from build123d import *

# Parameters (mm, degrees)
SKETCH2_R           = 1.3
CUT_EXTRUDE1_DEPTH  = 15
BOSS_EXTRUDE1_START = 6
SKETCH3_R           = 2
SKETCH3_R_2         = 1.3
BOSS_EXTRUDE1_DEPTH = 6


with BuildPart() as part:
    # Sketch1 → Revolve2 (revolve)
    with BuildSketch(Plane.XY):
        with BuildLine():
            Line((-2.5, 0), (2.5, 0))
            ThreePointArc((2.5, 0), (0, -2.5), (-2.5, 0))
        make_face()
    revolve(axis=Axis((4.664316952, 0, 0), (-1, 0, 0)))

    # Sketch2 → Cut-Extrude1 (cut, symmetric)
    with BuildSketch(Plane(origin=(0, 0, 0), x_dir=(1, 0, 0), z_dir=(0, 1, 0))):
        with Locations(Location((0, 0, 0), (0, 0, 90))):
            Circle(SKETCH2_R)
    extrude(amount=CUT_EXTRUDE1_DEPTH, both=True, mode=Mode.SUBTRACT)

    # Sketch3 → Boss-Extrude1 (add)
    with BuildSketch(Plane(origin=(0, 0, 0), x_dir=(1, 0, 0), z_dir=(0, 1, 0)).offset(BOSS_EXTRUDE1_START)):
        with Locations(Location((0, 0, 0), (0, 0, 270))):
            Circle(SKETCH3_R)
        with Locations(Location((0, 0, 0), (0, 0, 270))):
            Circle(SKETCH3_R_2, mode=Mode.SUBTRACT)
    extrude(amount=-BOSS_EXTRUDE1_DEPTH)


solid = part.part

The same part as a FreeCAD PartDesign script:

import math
import FreeCAD as App
import Part
import Sketcher
from FreeCAD import Vector
Q = App.Units.Quantity

doc = App.newDocument("Part")
body = doc.addObject("PartDesign::Body", "Body")

# Sketch on XY plane
sketch1 = body.newObject("Sketcher::SketchObject", "Sketch")
sketch1.AttachmentSupport = (doc.getObject("XY_Plane"), [""])
sketch1.MapMode = "FlatFace"
sketch1.addGeometry(Part.LineSegment(Vector(2.5, 0, 0), Vector(-2.5, 0, 0)), False)
sketch1.addGeometry(Part.ArcOfCircle(Part.Circle(Vector(0, 0, 0), Vector(0, 0, 1), 2.5), math.radians(180), math.radians(360)), False)
sketch1.addConstraint(Sketcher.Constraint("Coincident", 0, 1, 1, 2))
sketch1.addConstraint(Sketcher.Constraint("Coincident", 1, 1, 0, 2))
sketch1.addConstraint(Sketcher.Constraint("Horizontal", 0))
sketch1.addConstraint(Sketcher.Constraint("Coincident", 1, 3, -1, 1))
sketch1.addConstraint(Sketcher.Constraint("PointOnObject", 0, 1, -1))
sketch1.addConstraint(Sketcher.Constraint("Radius", 1, Q("2.5 mm")))
revolution = body.newObject("PartDesign::Revolution", "Revolution")
revolution.Profile = sketch1
revolution.ReferenceAxis = (sketch1, ["H_Axis"])
revolution.Angle = 360

# Sketch on XZ plane
sketch2 = body.newObject("Sketcher::SketchObject", "Sketch001")
sketch2.AttachmentSupport = (doc.getObject("XZ_Plane"), [""])
sketch2.MapMode = "FlatFace"
sketch2.addGeometry(Part.Circle(Vector(0, 0, 0), Vector(0, 0, 1), 1.3), False)
sketch2.addConstraint(Sketcher.Constraint("Coincident", 0, 3, -1, 1))
sketch2.addConstraint(Sketcher.Constraint("Diameter", 0, Q("2.6 mm")))
pocket1 = body.newObject("PartDesign::Pocket", "Pocket")
pocket1.Profile = sketch2
pocket1.Length = 30
pocket1.Midplane = True

# Sketch on XZ plane
sketch3 = body.newObject("Sketcher::SketchObject", "Sketch002")
sketch3.AttachmentSupport = (doc.getObject("XZ_Plane"), [""])
sketch3.MapMode = "FlatFace"
sketch3.AttachmentOffset = App.Placement(Vector(0, 0, -6), App.Rotation())
sketch3.addGeometry(Part.Circle(Vector(0, 0, 0), Vector(0, 0, 1), 2), False)
sketch3.addGeometry(Part.Circle(Vector(0, 0, 0), Vector(0, 0, 1), 1.3), False)
sketch3.addConstraint(Sketcher.Constraint("Coincident", 0, 3, -1, 1))
sketch3.addConstraint(Sketcher.Constraint("Coincident", 1, 3, -1, 1))
sketch3.addConstraint(Sketcher.Constraint("Diameter", 0, Q("4 mm")))
sketch3.addConstraint(Sketcher.Constraint("Diameter", 1, Q("2.6 mm")))
pad1 = body.newObject("PartDesign::Pad", "Pad")
pad1.Profile = sketch3
pad1.Length = 6

doc.recompute()
